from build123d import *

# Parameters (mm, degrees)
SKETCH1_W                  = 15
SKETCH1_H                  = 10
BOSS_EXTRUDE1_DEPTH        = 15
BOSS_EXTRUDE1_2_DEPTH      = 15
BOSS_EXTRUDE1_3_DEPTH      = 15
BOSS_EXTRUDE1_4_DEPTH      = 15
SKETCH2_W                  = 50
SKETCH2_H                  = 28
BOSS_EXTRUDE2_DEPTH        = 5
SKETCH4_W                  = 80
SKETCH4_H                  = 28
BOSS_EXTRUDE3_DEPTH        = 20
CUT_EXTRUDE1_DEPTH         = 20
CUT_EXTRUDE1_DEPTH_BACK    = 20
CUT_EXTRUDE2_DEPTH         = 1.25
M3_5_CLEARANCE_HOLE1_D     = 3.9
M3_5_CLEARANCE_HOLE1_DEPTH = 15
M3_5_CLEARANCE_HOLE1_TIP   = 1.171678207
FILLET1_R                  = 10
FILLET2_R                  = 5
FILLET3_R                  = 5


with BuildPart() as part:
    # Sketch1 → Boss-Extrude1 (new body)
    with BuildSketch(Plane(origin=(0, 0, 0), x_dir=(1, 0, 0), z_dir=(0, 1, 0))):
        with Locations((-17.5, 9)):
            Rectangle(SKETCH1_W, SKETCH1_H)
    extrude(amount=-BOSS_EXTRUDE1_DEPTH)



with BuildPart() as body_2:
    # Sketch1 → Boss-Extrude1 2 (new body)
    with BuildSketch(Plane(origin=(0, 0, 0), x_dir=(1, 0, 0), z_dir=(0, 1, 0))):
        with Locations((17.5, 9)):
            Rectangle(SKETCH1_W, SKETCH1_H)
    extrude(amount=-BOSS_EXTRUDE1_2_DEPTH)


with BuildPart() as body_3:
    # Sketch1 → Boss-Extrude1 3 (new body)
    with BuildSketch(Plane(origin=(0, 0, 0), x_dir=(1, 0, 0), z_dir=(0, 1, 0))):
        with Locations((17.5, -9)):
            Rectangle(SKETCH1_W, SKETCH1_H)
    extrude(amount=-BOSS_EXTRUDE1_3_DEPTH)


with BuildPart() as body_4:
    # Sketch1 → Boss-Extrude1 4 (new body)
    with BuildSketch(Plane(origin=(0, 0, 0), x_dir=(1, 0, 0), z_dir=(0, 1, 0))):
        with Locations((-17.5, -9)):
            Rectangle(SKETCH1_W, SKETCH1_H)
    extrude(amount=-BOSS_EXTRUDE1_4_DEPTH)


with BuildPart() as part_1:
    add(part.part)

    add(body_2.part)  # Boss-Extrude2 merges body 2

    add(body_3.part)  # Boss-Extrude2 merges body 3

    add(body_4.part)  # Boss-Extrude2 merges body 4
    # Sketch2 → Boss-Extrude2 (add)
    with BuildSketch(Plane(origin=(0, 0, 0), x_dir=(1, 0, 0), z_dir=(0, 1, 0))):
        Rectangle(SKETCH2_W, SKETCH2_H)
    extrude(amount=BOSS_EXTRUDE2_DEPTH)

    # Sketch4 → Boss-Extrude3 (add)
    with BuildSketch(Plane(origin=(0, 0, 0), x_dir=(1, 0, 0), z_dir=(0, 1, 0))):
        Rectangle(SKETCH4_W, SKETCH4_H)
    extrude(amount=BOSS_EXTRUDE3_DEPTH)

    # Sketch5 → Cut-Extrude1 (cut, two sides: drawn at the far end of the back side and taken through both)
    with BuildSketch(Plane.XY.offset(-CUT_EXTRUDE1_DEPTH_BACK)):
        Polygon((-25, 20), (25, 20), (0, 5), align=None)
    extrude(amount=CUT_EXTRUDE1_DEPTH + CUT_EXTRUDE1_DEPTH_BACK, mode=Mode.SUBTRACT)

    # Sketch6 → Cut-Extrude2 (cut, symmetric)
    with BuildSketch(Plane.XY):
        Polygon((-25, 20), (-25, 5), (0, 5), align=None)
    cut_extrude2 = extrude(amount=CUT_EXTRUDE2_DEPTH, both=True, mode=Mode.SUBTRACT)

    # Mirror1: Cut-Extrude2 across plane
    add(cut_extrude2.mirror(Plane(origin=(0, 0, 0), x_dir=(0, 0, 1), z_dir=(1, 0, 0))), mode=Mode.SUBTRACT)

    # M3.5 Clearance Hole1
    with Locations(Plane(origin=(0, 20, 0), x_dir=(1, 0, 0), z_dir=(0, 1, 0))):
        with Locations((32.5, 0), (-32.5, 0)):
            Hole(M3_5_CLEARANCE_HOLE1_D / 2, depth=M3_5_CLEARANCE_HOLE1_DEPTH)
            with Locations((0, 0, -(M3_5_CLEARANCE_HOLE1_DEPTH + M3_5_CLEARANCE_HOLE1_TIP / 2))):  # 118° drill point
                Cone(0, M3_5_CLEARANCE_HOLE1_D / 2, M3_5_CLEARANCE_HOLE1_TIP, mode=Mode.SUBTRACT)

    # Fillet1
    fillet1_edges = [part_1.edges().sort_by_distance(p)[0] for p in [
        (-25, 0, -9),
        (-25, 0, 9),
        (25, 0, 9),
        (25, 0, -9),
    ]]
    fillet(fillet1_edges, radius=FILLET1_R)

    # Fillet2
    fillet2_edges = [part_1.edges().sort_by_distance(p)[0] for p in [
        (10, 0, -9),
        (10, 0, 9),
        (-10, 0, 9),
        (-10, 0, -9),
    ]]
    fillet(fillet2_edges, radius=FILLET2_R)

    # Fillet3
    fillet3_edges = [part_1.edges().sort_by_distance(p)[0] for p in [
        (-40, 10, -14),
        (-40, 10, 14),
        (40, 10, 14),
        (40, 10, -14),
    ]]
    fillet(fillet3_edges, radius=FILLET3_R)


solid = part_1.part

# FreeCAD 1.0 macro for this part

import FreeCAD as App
import Part
import Sketcher
Q = App.Units.Quantity


def edges_at(feature, points):
    """Names of the edges that pass closest to the given points."""
    edges = feature.Shape.Edges
    near = lambda p: min(range(len(edges)), key=lambda i: edges[i].distToShape(Part.Vertex(*p))[0])
    return sorted({f"Edge{near(p) + 1}" for p in points})


def add_polygon(sketch, points):
    """Adds a closed chain of lines whose ends are joined by coincident constraints."""
    first, n = sketch.GeometryCount, len(points)
    for a, b in zip(points, points[1:] + points[:1]):
        sketch.addGeometry(Part.LineSegment(App.Vector(*a, 0), App.Vector(*b, 0)), False)
    for i in range(n):
        sketch.addConstraint(Sketcher.Constraint("Coincident", first + i, 2, first + (i + 1) % n, 1))

doc = App.newDocument("Part")
body = doc.addObject("PartDesign::Body", "Body")

sketch1 = doc.addObject("Sketcher::SketchObject", "Sketch")
body.addObject(sketch1)
sketch1.AttachmentSupport = (doc.XZ_Plane, [""])
sketch1.MapMode = "FlatFace"
add_polygon(sketch1, [(-25, -14), (-25, -4), (-10, -4), (-10, -14)])
sketch1.addConstraint([
    Sketcher.Constraint("Vertical", 0),
    Sketcher.Constraint("Horizontal", 1),
    Sketcher.Constraint("Vertical", 2),
    Sketcher.Constraint("Horizontal", 3),
    Sketcher.Constraint("DistanceX", 1, 1, 1, 2, Q("15 mm")),
    Sketcher.Constraint("DistanceY", 0, 1, 0, 2, Q("10 mm")),
    Sketcher.Constraint("DistanceX", 0, 2, -1, 1, Q("25 mm")),
    Sketcher.Constraint("DistanceY", 0, 2, -1, 1, Q("4 mm")),
])
pad1 = doc.addObject("PartDesign::Pad", "Pad")
body.addObject(pad1)
pad1.Profile = sketch1
pad1.Length = 15
body2 = doc.addObject("PartDesign::Body", "Body001")

sketch2 = doc.addObject("Sketcher::SketchObject", "Sketch001")
body2.addObject(sketch2)
sketch2.AttachmentSupport = (doc.getObject("XZ_Plane001"), [""])
sketch2.MapMode = "FlatFace"
add_polygon(sketch2, [(10, -14), (10, -4), (25, -4), (25, -14)])
sketch2.addConstraint([
    Sketcher.Constraint("Vertical", 0),
    Sketcher.Constraint("Horizontal", 1),
    Sketcher.Constraint("Vertical", 2),
    Sketcher.Constraint("Horizontal", 3),
    Sketcher.Constraint("DistanceX", 1, 1, 1, 2, Q("15 mm")),
    Sketcher.Constraint("DistanceY", 0, 1, 0, 2, Q("10 mm")),
    Sketcher.Constraint("DistanceX", -1, 1, 0, 2, Q("10 mm")),
    Sketcher.Constraint("DistanceY", 0, 2, -1, 1, Q("4 mm")),
])
pad2 = doc.addObject("PartDesign::Pad", "Pad001")
body2.addObject(pad2)
pad2.Profile = sketch2
pad2.Length = 15
body3 = doc.addObject("PartDesign::Body", "Body002")

sketch3 = doc.addObject("Sketcher::SketchObject", "Sketch002")
body3.addObject(sketch3)
sketch3.AttachmentSupport = (doc.getObject("XZ_Plane002"), [""])
sketch3.MapMode = "FlatFace"
add_polygon(sketch3, [(10, 4), (10, 14), (25, 14), (25, 4)])
sketch3.addConstraint([
    Sketcher.Constraint("Vertical", 0),
    Sketcher.Constraint("Horizontal", 1),
    Sketcher.Constraint("Vertical", 2),
    Sketcher.Constraint("Horizontal", 3),
    Sketcher.Constraint("DistanceX", 1, 1, 1, 2, Q("15 mm")),
    Sketcher.Constraint("DistanceY", 0, 1, 0, 2, Q("10 mm")),
    Sketcher.Constraint("DistanceX", -1, 1, 0, 2, Q("10 mm")),
    Sketcher.Constraint("DistanceY", -1, 1, 0, 2, Q("14 mm")),
])
pad3 = doc.addObject("PartDesign::Pad", "Pad002")
body3.addObject(pad3)
pad3.Profile = sketch3
pad3.Length = 15
body4 = doc.addObject("PartDesign::Body", "Body003")

sketch4 = doc.addObject("Sketcher::SketchObject", "Sketch003")
body4.addObject(sketch4)
sketch4.AttachmentSupport = (doc.getObject("XZ_Plane003"), [""])
sketch4.MapMode = "FlatFace"
add_polygon(sketch4, [(-25, 4), (-25, 14), (-10, 14), (-10, 4)])
sketch4.addConstraint([
    Sketcher.Constraint("Vertical", 0),
    Sketcher.Constraint("Horizontal", 1),
    Sketcher.Constraint("Vertical", 2),
    Sketcher.Constraint("Horizontal", 3),
    Sketcher.Constraint("DistanceX", 1, 1, 1, 2, Q("15 mm")),
    Sketcher.Constraint("DistanceY", 0, 1, 0, 2, Q("10 mm")),
    Sketcher.Constraint("DistanceX", 0, 2, -1, 1, Q("25 mm")),
    Sketcher.Constraint("DistanceY", -1, 1, 0, 2, Q("14 mm")),
])
pad4 = doc.addObject("PartDesign::Pad", "Pad003")
body4.addObject(pad4)
pad4.Profile = sketch4
pad4.Length = 15
body.AllowCompound = True
doc.recompute()

boolean = doc.addObject("PartDesign::Boolean", "Boolean")
body.addObject(boolean)
boolean.Type = "Fuse"
boolean.addObjects([body2])
doc.recompute()

boolean2 = doc.addObject("PartDesign::Boolean", "Boolean001")
body.addObject(boolean2)
boolean2.Type = "Fuse"
boolean2.addObjects([body3])
doc.recompute()

boolean3 = doc.addObject("PartDesign::Boolean", "Boolean002")
body.addObject(boolean3)
boolean3.Type = "Fuse"
boolean3.addObjects([body4])

sketch5 = doc.addObject("Sketcher::SketchObject", "Sketch004")
body.addObject(sketch5)
sketch5.AttachmentSupport = (doc.XZ_Plane, [""])
sketch5.MapMode = "FlatFace"
add_polygon(sketch5, [(-25, -14), (-25, 14), (25, 14), (25, -14)])
sketch5.addConstraint([
    Sketcher.Constraint("Vertical", 0),
    Sketcher.Constraint("Horizontal", 1),
    Sketcher.Constraint("Vertical", 2),
    Sketcher.Constraint("Horizontal", 3),
    Sketcher.Constraint("Symmetric", 0, 2, 2, 2, -1, 1),
    Sketcher.Constraint("DistanceX", 1, 1, 1, 2, Q("50 mm")),
    Sketcher.Constraint("DistanceY", 0, 1, 0, 2, Q("28 mm")),
])
pad5 = doc.addObject("PartDesign::Pad", "Pad004")
body.addObject(pad5)
pad5.Profile = sketch5
pad5.Length = 5
pad5.Reversed = True

sketch6 = doc.addObject("Sketcher::SketchObject", "Sketch005")
body.addObject(sketch6)
sketch6.AttachmentSupport = (doc.XZ_Plane, [""])
sketch6.MapMode = "FlatFace"
add_polygon(sketch6, [(-40, -14), (-40, 14), (40, 14), (40, -14)])
sketch6.addConstraint([
    Sketcher.Constraint("Vertical", 0),
    Sketcher.Constraint("Horizontal", 1),
    Sketcher.Constraint("Vertical", 2),
    Sketcher.Constraint("Horizontal", 3),
    Sketcher.Constraint("Symmetric", 0, 2, 2, 2, -1, 1),
    Sketcher.Constraint("DistanceX", 1, 1, 1, 2, Q("80 mm")),
    Sketcher.Constraint("DistanceY", 0, 1, 0, 2, Q("28 mm")),
])
pad6 = doc.addObject("PartDesign::Pad", "Pad005")
body.addObject(pad6)
pad6.Profile = sketch6
pad6.Length = 20
pad6.Reversed = True

sketch7 = doc.addObject("Sketcher::SketchObject", "Sketch006")
body.addObject(sketch7)
sketch7.AttachmentSupport = (doc.XY_Plane, [""])
sketch7.MapMode = "FlatFace"
add_polygon(sketch7, [(25, 20), (-25, 20), (0, 5)])
sketch7.addConstraint([
    Sketcher.Constraint("Horizontal", 0),
    Sketcher.Constraint("PointOnObject", 1, 2, -2),
    Sketcher.Constraint("Equal", 1, 2),
    Sketcher.Constraint("DistanceX", 0, 2, 0, 1, Q("50 mm")),
    Sketcher.Constraint("DistanceY", -1, 1, 0, 2, Q("20 mm")),
    Sketcher.Constraint("DistanceY", -1, 1, 1, 2, Q("5 mm")),
])
pocket1 = doc.addObject("PartDesign::Pocket", "Pocket")
body.addObject(pocket1)
pocket1.Profile = sketch7
pocket1.Type = "ThroughAll"
pocket1.Midplane = True

sketch8 = doc.addObject("Sketcher::SketchObject", "Sketch007")
body.addObject(sketch8)
sketch8.AttachmentSupport = (doc.XY_Plane, [""])
sketch8.MapMode = "FlatFace"
add_polygon(sketch8, [(-25, 20), (-25, 5), (0, 5)])
sketch8.addConstraint([
    Sketcher.Constraint("Vertical", 0),
    Sketcher.Constraint("Horizontal", 1),
    Sketcher.Constraint("PointOnObject", 1, 2, -2),
    Sketcher.Constraint("DistanceX", 1, 1, 1, 2, Q("25 mm")),
    Sketcher.Constraint("DistanceY", 0, 2, 0, 1, Q("15 mm")),
    Sketcher.Constraint("DistanceY", -1, 1, 0, 2, Q("5 mm")),
])
pocket2 = doc.addObject("PartDesign::Pocket", "Pocket001")
body.addObject(pocket2)
pocket2.Profile = sketch8
pocket2.Length = 2.5
pocket2.Midplane = True
doc.recompute()

mirrored = doc.addObject("PartDesign::Mirrored", "Mirrored")
body.addObject(mirrored)
mirrored.Originals = [pocket2]
mirrored.MirrorPlane = (doc.YZ_Plane, [""])
body.Tip = mirrored

sketch9 = doc.addObject("Sketcher::SketchObject", "Sketch008")
body.addObject(sketch9)
sketch9.AttachmentSupport = (doc.XZ_Plane, [""])
sketch9.MapMode = "FlatFace"
sketch9.AttachmentOffset = App.Placement(App.Vector(0, 0, -20), App.Rotation())
sketch9.addGeometry([
    Part.Circle(App.Vector(32.5, 0, 0), App.Vector(0, 0, 1), 1.9),
    Part.Circle(App.Vector(-32.5, 0, 0), App.Vector(0, 0, 1), 1.9),
], False)
sketch9.addConstraint([
    Sketcher.Constraint("Equal", 0, 1),
    Sketcher.Constraint("Symmetric", 0, 3, 1, 3, -1, 1),
    Sketcher.Constraint("PointOnObject", 0, 3, -1),
    Sketcher.Constraint("Diameter", 0, Q("3.9 mm")),
    Sketcher.Constraint("DistanceX", 1, 3, 0, 3, Q("65 mm")),
])
doc.recompute()
hole = doc.addObject("PartDesign::Hole", "Hole")
body.addObject(hole)
hole.Profile = sketch9
hole.ThreadType = "None"
hole.Diameter = 3.9
hole.DepthType = "Dimension"
hole.Depth = 15
hole.DrillPoint = "Angled"
hole.DrillPointAngle = 118
hole.Reversed = True
doc.recompute()

fillet = doc.addObject("PartDesign::Fillet", "Fillet")
body.addObject(fillet)
fillet.Base = (hole, edges_at(hole, [
    (-25, 0, -9),
    (-25, 0, 9),
    (25, 0, 9),
    (25, 0, -9),
]))
fillet.Radius = 10
doc.recompute()

fillet2 = doc.addObject("PartDesign::Fillet", "Fillet001")
body.addObject(fillet2)
fillet2.Base = (fillet, edges_at(fillet, [
    (10, 0, -9),
    (10, 0, 9),
    (-10, 0, 9),
    (-10, 0, -9),
]))
fillet2.Radius = 5
doc.recompute()

fillet3 = doc.addObject("PartDesign::Fillet", "Fillet002")
body.addObject(fillet3)
fillet3.Base = (fillet2, edges_at(fillet2, [
    (-40, 10, -14),
    (-40, 10, 14),
    (40, 10, 14),
    (40, 10, -14),
]))
fillet3.Radius = 5

doc.recompute()
